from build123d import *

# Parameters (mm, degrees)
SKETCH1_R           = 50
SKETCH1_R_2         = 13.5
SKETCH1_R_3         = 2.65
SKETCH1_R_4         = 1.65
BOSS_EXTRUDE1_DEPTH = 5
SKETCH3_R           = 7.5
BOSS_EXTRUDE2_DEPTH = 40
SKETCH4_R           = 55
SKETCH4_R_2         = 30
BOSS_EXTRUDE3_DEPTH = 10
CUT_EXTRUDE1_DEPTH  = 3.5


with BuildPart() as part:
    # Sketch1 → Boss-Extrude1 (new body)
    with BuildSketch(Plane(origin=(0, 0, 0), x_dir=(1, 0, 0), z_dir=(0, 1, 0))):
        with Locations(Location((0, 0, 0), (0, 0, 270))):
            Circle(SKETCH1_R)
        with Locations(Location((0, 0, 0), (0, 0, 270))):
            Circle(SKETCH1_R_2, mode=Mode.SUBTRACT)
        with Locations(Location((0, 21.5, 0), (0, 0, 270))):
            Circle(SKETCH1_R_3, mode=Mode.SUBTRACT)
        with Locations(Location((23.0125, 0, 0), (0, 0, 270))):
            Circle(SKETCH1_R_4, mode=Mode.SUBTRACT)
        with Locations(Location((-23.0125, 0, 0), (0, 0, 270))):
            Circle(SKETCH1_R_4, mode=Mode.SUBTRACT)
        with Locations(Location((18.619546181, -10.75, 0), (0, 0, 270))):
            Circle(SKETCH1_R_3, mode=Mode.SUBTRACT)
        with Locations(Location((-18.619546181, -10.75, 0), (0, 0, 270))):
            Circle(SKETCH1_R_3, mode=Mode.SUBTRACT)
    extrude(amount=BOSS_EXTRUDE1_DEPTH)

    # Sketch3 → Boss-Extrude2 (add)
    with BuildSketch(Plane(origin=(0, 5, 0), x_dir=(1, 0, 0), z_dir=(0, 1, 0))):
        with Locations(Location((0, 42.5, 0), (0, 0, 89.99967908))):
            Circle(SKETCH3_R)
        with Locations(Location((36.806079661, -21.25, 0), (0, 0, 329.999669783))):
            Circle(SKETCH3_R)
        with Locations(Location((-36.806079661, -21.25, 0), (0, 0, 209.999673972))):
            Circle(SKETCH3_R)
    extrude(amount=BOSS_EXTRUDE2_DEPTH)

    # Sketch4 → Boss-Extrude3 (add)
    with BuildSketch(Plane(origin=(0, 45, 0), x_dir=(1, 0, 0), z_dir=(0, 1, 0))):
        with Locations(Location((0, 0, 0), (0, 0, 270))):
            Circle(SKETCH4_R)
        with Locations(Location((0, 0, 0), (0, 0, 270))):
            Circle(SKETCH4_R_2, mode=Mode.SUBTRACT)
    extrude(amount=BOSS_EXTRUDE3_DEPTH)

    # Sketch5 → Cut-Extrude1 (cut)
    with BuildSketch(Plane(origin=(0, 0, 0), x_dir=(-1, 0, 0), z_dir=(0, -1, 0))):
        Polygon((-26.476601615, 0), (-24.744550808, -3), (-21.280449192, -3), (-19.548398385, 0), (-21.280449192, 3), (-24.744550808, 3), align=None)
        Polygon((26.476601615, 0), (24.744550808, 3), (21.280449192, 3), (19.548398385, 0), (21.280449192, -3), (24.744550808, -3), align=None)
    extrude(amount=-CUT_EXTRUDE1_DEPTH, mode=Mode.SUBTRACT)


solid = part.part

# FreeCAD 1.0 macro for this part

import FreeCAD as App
import Part
import Sketcher
from FreeCAD import Vector
Q = App.Units.Quantity

doc = App.newDocument("Part")
body = doc.addObject("PartDesign::Body", "Body")

# Sketch on XZ plane
sketch1 = doc.addObject("Sketcher::SketchObject", "Sketch")
body.addObject(sketch1)
sketch1.AttachmentSupport = (doc.XZ_Plane, [""])
sketch1.MapMode = "FlatFace"
sketch1.addGeometry([
    Part.Circle(Vector(0, 0, 0), Vector(0, 0, 1), 50),  # 0
    Part.Circle(Vector(0, -21.5, 0), Vector(0, 0, 1), 2.6),  # 1
    Part.Circle(Vector(-23, 0, 0), Vector(0, 0, 1), 1.6),  # 2
    Part.Circle(Vector(-18.6, 10.8, 0), Vector(0, 0, 1), 2.6),  # 3
    Part.Circle(Vector(0, 0, 0), Vector(0, 0, 1), 13.5),  # 4
    Part.Circle(Vector(23, 0, 0), Vector(0, 0, 1), 1.6),  # 5
    Part.Circle(Vector(18.6, 10.8, 0), Vector(0, 0, 1), 2.6),  # 6
], False)
sketch1.addConstraint([
    Sketcher.Constraint("Coincident", 0, 3, -1, 1),
    Sketcher.Constraint("Coincident", 4, 3, -1, 1),
    Sketcher.Constraint("Equal", 1, 3),
    Sketcher.Constraint("Equal", 2, 5),
    Sketcher.Constraint("Equal", 3, 6),
    Sketcher.Constraint("Symmetric", 2, 3, 5, 3, -1, 1),
    Sketcher.Constraint("Symmetric", 3, 3, 6, 3, -2),
    Sketcher.Constraint("PointOnObject", 1, 3, -2),
    Sketcher.Constraint("PointOnObject", 2, 3, -1),
    Sketcher.Constraint("Diameter", 0, Q("100 mm")),
    Sketcher.Constraint("Diameter", 4, Q("27 mm")),
    Sketcher.Constraint("Diameter", 1, Q("5.3 mm")),
    Sketcher.Constraint("Diameter", 2, Q("3.3 mm")),
    Sketcher.Constraint("DistanceY", 1, 3, -1, 1, Q("21.5 mm")),
    Sketcher.Constraint("DistanceY", -1, 1, 3, 3, Q("10.75 mm")),
    Sketcher.Constraint("DistanceX", 2, 3, 5, 3, Q("46.025 mm")),
    Sketcher.Constraint("DistanceX", 3, 3, -1, 1, Q("18.619546 mm")),
])
pad1 = doc.addObject("PartDesign::Pad", "Pad")
body.addObject(pad1)
pad1.Profile = sketch1
pad1.Length = 5
pad1.Reversed = True

# Sketch on XZ plane
sketch2 = doc.addObject("Sketcher::SketchObject", "Sketch001")
body.addObject(sketch2)
sketch2.AttachmentSupport = (doc.XZ_Plane, [""])
sketch2.MapMode = "FlatFace"
sketch2.AttachmentOffset = App.Placement(Vector(0, 0, -5), App.Rotation())
sketch2.addGeometry([
    Part.Circle(Vector(0, -42, 0), Vector(0, 0, 1), 8),
    Part.Circle(Vector(37, 21, 0), Vector(0, 0, 1), 8),
    Part.Circle(Vector(-37, 21, 0), Vector(0, 0, 1), 8),
], False)
sketch2.addConstraint([
    Sketcher.Constraint("Equal", 0, 1),
    Sketcher.Constraint("Equal", 1, 2),
    Sketcher.Constraint("Symmetric", 1, 3, 2, 3, -2),
    Sketcher.Constraint("PointOnObject", 0, 3, -2),
    Sketcher.Constraint("Diameter", 0, Q("15 mm")),
    Sketcher.Constraint("DistanceY", 0, 3, -1, 1, Q("42.5 mm")),
    Sketcher.Constraint("DistanceY", -1, 1, 1, 3, Q("21.25 mm")),
    Sketcher.Constraint("DistanceX", -1, 1, 1, 3, Q("36.80608 mm")),
])
pad2 = doc.addObject("PartDesign::Pad", "Pad001")
body.addObject(pad2)
pad2.Profile = sketch2
pad2.Length = 40
pad2.Reversed = True

# Sketch on XZ plane
sketch3 = doc.addObject("Sketcher::SketchObject", "Sketch002")
body.addObject(sketch3)
sketch3.AttachmentSupport = (doc.XZ_Plane, [""])
sketch3.MapMode = "FlatFace"
sketch3.AttachmentOffset = App.Placement(Vector(0, 0, -45), App.Rotation())
sketch3.addGeometry([
    Part.Circle(Vector(0, 0, 0), Vector(0, 0, 1), 55),
    Part.Circle(Vector(0, 0, 0), Vector(0, 0, 1), 30),
], False)
sketch3.addConstraint([
    Sketcher.Constraint("Coincident", 0, 3, -1, 1),
    Sketcher.Constraint("Coincident", 1, 3, -1, 1),
    Sketcher.Constraint("Diameter", 0, Q("110 mm")),
    Sketcher.Constraint("Diameter", 1, Q("60 mm")),
])
pad3 = doc.addObject("PartDesign::Pad", "Pad002")
body.addObject(pad3)
pad3.Profile = sketch3
pad3.Length = 10
pad3.Reversed = True

# Sketch on XZ plane
sketch4 = doc.addObject("Sketcher::SketchObject", "Sketch003")
body.addObject(sketch4)
sketch4.AttachmentSupport = (doc.XZ_Plane, [""])
sketch4.MapMode = "FlatFace"
sketch4.addGeometry([
    Part.LineSegment(Vector(26.5, 0, 0), Vector(24.7, 3, 0)),  # 0
    Part.LineSegment(Vector(24.7, 3, 0), Vector(21.3, 3, 0)),  # 1
    Part.LineSegment(Vector(21.3, 3, 0), Vector(19.5, 0, 0)),  # 2
    Part.LineSegment(Vector(19.5, 0, 0), Vector(21.3, -3, 0)),  # 3
    Part.LineSegment(Vector(21.3, -3, 0), Vector(24.7, -3, 0)),  # 4
    Part.LineSegment(Vector(24.7, -3, 0), Vector(26.5, 0, 0)),  # 5
    Part.LineSegment(Vector(-26.5, 0, 0), Vector(-24.7, -3, 0)),  # 6
    Part.LineSegment(Vector(-24.7, -3, 0), Vector(-21.3, -3, 0)),  # 7
    Part.LineSegment(Vector(-21.3, -3, 0), Vector(-19.5, 0, 0)),  # 8
    Part.LineSegment(Vector(-19.5, 0, 0), Vector(-21.3, 3, 0)),  # 9
    Part.LineSegment(Vector(-21.3, 3, 0), Vector(-24.7, 3, 0)),  # 10
    Part.LineSegment(Vector(-24.7, 3, 0), Vector(-26.5, 0, 0)),  # 11
], False)
sketch4.addConstraint([
    Sketcher.Constraint("Coincident", 0, 2, 1, 1),
    Sketcher.Constraint("Coincident", 1, 2, 2, 1),
    Sketcher.Constraint("Coincident", 2, 2, 3, 1),
    Sketcher.Constraint("Coincident", 3, 2, 4, 1),
    Sketcher.Constraint("Coincident", 4, 2, 5, 1),
    Sketcher.Constraint("Coincident", 5, 2, 0, 1),
    Sketcher.Constraint("Coincident", 6, 2, 7, 1),
    Sketcher.Constraint("Coincident", 7, 2, 8, 1),
    Sketcher.Constraint("Coincident", 8, 2, 9, 1),
    Sketcher.Constraint("Coincident", 9, 2, 10, 1),
    Sketcher.Constraint("Coincident", 10, 2, 11, 1),
    Sketcher.Constraint("Coincident", 11, 2, 6, 1),
    Sketcher.Constraint("Horizontal", 1),
    Sketcher.Constraint("Horizontal", 4),
    Sketcher.Constraint("Horizontal", 7),
    Sketcher.Constraint("Horizontal", 10),
    Sketcher.Constraint("Symmetric", 0, 2, 6, 2, -1, 1),
    Sketcher.Constraint("Symmetric", 2, 2, 8, 2, -1, 1),
    Sketcher.Constraint("Symmetric", 3, 2, 9, 2, -1, 1),
    Sketcher.Constraint("Symmetric", 5, 2, 11, 2, -1, 1),
    Sketcher.Constraint("Symmetric", 4, 2, 6, 2, -2),
    Sketcher.Constraint("PointOnObject", 2, 2, -1),
    Sketcher.Constraint("PointOnObject", 5, 2, -1),
    Sketcher.Constraint("Parallel", 0, 3),
    Sketcher.Constraint("Parallel", 2, 5),
    Sketcher.Constraint("Parallel", 5, 8),
    Sketcher.Constraint("Parallel", 8, 11),
    Sketcher.Constraint("Angle", 0, Q("120 deg")),
    Sketcher.Constraint("DistanceY", -1, 1, 0, 2, Q("3 mm")),
    Sketcher.Constraint("DistanceX", 1, 2, 1, 1, Q("3.464102 mm")),
    Sketcher.Constraint("DistanceX", 6, 2, 3, 2, Q("46.025 mm")),
])
pocket1 = doc.addObject("PartDesign::Pocket", "Pocket")
body.addObject(pocket1)
pocket1.Profile = sketch4
pocket1.Length = 3.5

doc.recompute()
